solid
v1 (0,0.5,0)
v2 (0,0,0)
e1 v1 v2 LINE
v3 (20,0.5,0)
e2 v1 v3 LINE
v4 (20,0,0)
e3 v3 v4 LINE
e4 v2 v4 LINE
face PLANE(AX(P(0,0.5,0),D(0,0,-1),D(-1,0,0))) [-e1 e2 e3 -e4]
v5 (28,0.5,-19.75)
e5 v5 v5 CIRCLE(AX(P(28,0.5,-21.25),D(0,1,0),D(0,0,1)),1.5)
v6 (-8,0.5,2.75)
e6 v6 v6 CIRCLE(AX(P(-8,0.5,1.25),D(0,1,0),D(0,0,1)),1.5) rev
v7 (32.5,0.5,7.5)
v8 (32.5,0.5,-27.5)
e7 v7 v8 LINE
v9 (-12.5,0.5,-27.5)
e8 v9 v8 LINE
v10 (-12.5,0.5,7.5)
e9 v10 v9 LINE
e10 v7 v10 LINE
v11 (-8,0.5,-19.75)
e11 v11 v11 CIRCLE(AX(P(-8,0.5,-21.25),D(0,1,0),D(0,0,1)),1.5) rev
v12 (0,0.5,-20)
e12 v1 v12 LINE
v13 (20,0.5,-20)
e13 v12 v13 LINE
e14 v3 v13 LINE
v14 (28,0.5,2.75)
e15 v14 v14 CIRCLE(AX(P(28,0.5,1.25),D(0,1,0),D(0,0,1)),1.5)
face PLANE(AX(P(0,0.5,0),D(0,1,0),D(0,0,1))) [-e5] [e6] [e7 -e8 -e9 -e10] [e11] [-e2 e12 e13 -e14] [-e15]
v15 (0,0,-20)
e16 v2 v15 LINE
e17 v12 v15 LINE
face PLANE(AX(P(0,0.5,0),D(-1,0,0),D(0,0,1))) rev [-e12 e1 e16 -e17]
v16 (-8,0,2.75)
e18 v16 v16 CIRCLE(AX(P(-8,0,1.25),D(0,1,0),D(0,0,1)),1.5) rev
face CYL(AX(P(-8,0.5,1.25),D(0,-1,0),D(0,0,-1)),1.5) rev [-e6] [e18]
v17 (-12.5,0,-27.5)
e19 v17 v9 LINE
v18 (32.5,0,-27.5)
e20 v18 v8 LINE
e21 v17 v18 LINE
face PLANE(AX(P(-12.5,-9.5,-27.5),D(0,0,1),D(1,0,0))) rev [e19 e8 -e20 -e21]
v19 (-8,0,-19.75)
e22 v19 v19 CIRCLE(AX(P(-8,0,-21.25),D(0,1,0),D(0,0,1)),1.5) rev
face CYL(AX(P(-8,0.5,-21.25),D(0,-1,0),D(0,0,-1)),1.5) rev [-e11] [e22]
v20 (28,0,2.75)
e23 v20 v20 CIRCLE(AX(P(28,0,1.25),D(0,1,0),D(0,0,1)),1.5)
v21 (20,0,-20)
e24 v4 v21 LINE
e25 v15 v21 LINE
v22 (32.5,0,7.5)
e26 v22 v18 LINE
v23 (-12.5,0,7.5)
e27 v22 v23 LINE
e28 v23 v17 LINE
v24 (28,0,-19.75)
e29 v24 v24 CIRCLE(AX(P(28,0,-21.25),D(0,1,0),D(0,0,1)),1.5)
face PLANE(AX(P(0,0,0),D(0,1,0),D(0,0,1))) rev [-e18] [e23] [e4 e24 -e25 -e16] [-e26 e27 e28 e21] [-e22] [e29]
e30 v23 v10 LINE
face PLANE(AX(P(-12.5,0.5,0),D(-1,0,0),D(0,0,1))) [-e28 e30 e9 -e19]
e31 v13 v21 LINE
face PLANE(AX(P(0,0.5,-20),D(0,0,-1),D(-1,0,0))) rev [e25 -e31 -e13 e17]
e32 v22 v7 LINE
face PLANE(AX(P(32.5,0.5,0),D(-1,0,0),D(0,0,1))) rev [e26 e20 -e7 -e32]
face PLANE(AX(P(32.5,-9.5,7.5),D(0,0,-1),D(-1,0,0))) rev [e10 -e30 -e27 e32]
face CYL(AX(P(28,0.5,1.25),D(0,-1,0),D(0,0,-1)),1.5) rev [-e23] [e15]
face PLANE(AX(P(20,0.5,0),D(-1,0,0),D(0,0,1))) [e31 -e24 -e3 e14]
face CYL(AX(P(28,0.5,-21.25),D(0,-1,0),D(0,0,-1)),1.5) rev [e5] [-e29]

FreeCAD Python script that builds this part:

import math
import FreeCAD as App
import Part
import Sketcher
from FreeCAD import Vector
Q = App.Units.Quantity

doc = App.newDocument("Part")
body = doc.addObject("PartDesign::Body", "Body")

sketch1 = doc.addObject("Sketcher::SketchObject", "Sketch")
body.addObject(sketch1)
sketch1.AttachmentSupport = (doc.XZ_Plane, [""])
sketch1.MapMode = "FlatFace"
sketch1.addGeometry([
    Part.ArcOfCircle(Part.Circle(Vector(-9.97, 9.97, 0), Vector(0, 0, 1), 3.5), math.radians(133.82), math.radians(136.18)),
    Part.LineSegment(Vector(-12.4, 12.5, 0), Vector(32.5, 12.5, 0)),
    Part.LineSegment(Vector(32.5, 12.5, 0), Vector(32.5, -32.5, 0)),
    Part.LineSegment(Vector(32.5, -32.5, 0), Vector(-12.5, -32.5, 0)),
    Part.LineSegment(Vector(-12.5, -32.5, 0), Vector(-12.5, 12.4, 0)),
    Part.Circle(Vector(-8, 1.25, 0), Vector(0, 0, 1), 1.5),
    Part.Circle(Vector(28, 1.25, 0), Vector(0, 0, 1), 1.5),
    Part.Circle(Vector(-8, -21.25, 0), Vector(0, 0, 1), 1.5),
    Part.LineSegment(Vector(20, 0, 0), Vector(0, 0, 0)),
    Part.LineSegment(Vector(0, 0, 0), Vector(0, -20, 0)),
    Part.LineSegment(Vector(0, -20, 0), Vector(20, -20, 0)),
    Part.LineSegment(Vector(20, -20, 0), Vector(20, 0, 0)),
    Part.Circle(Vector(28, -21.25, 0), Vector(0, 0, 1), 1.5),
], False)
sketch1.addConstraint([
    Sketcher.Constraint("Coincident", 0, 1, 1, 1),
    Sketcher.Constraint("Coincident", 1, 2, 2, 1),
    Sketcher.Constraint("Coincident", 2, 2, 3, 1),
    Sketcher.Constraint("Coincident", 3, 2, 4, 1),
    Sketcher.Constraint("Coincident", 4, 2, 0, 2),
    Sketcher.Constraint("Coincident", 8, 2, 9, 1),
    Sketcher.Constraint("Coincident", 9, 2, 10, 1),
    Sketcher.Constraint("Coincident", 10, 2, 11, 1),
    Sketcher.Constraint("Coincident", 11, 2, 8, 1),
    Sketcher.Constraint("Horizontal", 1),
    Sketcher.Constraint("Vertical", 2),
    Sketcher.Constraint("Horizontal", 3),
    Sketcher.Constraint("Vertical", 4),
    Sketcher.Constraint("Horizontal", 8),
    Sketcher.Constraint("Vertical", 9),
    Sketcher.Constraint("Horizontal", 10),
    Sketcher.Constraint("Vertical", 11),
    Sketcher.Constraint("Coincident", 8, 2, -1, 1),
    Sketcher.Constraint("Equal", 5, 6),
    Sketcher.Constraint("Equal", 6, 7),
    Sketcher.Constraint("Equal", 7, 12),
    Sketcher.Constraint("Horizontal", 5, 3, 6, 3),
    Sketcher.Constraint("Horizontal", 7, 3, 12, 3),
    Sketcher.Constraint("Vertical", 5, 3, 7, 3),
    Sketcher.Constraint("Vertical", 6, 3, 12, 3),
    Sketcher.Constraint("Equal", 3, 2),
    Sketcher.Constraint("Equal", 1, 4),
    Sketcher.Constraint("Equal", 10, 9),
    Sketcher.Constraint("Diameter", 5, Q("3 mm")),
    Sketcher.Constraint("Radius", 0, Q("3.500001 mm")),
    Sketcher.Constraint("DistanceX", 3, 2, 3, 1, Q("45 mm")),
    Sketcher.Constraint("DistanceX", 8, 2, 8, 1, Q("20 mm")),
    Sketcher.Constraint("DistanceX", 5, 3, -1, 1, Q("8 mm")),
    Sketcher.Constraint("DistanceX", -1, 1, 6, 3, Q("28 mm")),
    Sketcher.Constraint("DistanceY", -1, 1, 0, 1, Q("12.5 mm")),
    Sketcher.Constraint("DistanceX", -1, 1, 1, 2, Q("32.5 mm")),
    Sketcher.Constraint("DistanceY", 7, 3, 5, 3, Q("22.5 mm")),
    Sketcher.Constraint("DistanceY", -1, 1, 5, 3, Q("1.25 mm")),
    Sketcher.Constraint("DistanceX", 1, 1, 1, 2, Q("44.898453 mm")),
])
pad1 = doc.addObject("PartDesign::Pad", "Pad")
body.addObject(pad1)
pad1.Profile = sketch1
pad1.Length = 0.5
pad1.Reversed = True

sketch2 = doc.addObject("Sketcher::SketchObject", "Sketch001")
body.addObject(sketch2)
sketch2.AttachmentSupport = (doc.XZ_Plane, [""])
sketch2.MapMode = "FlatFace"
sketch2.AttachmentOffset = App.Placement(Vector(0, 0, -0.5), App.Rotation())
sketch2.addGeometry([
    Part.LineSegment(Vector(-12, -32, 0), Vector(-12, -28, 0)),
    Part.LineSegment(Vector(-12, -28, 0), Vector(32, -28, 0)),
    Part.LineSegment(Vector(32, -28, 0), Vector(32, -32, 0)),
    Part.LineSegment(Vector(32, -32, 0), Vector(-12, -32, 0)),
    Part.LineSegment(Vector(-12, 8, 0), Vector(-12, 12, 0)),
    Part.LineSegment(Vector(-12, 12, 0), Vector(32, 12, 0)),
    Part.LineSegment(Vector(32, 12, 0), Vector(32, 8, 0)),
    Part.LineSegment(Vector(32, 8, 0), Vector(-12, 8, 0)),
], False)
sketch2.addConstraint([
    Sketcher.Constraint("Coincident", 0, 2, 1, 1),
    Sketcher.Constraint("Coincident", 1, 2, 2, 1),
    Sketcher.Constraint("Coincident", 2, 2, 3, 1),
    Sketcher.Constraint("Coincident", 3, 2, 0, 1),
    Sketcher.Constraint("Coincident", 4, 2, 5, 1),
    Sketcher.Constraint("Coincident", 5, 2, 6, 1),
    Sketcher.Constraint("Coincident", 6, 2, 7, 1),
    Sketcher.Constraint("Coincident", 7, 2, 4, 1),
    Sketcher.Constraint("Vertical", 0),
    Sketcher.Constraint("Horizontal", 1),
    Sketcher.Constraint("Vertical", 2),
    Sketcher.Constraint("Horizontal", 3),
    Sketcher.Constraint("Vertical", 4),
    Sketcher.Constraint("Horizontal", 5),
    Sketcher.Constraint("Vertical", 6),
    Sketcher.Constraint("Horizontal", 7),
    Sketcher.Constraint("Vertical", 3, 2, 4, 2),
    Sketcher.Constraint("Vertical", 2, 2, 5, 2),
    Sketcher.Constraint("Equal", 2, 4),
    Sketcher.Constraint("DistanceX", 1, 1, 1, 2, Q("45 mm")),
    Sketcher.Constraint("DistanceY", 0, 1, 0, 2, Q("5 mm")),
    Sketcher.Constraint("DistanceY", 0, 2, 4, 2, Q("40 mm")),
    Sketcher.Constraint("DistanceX", 0, 2, -1, 1, Q("12.5 mm")),
    Sketcher.Constraint("DistanceY", 0, 2, -1, 1, Q("27.5 mm")),
])
pocket1 = doc.addObject("PartDesign::Pocket", "Pocket")
body.addObject(pocket1)
pocket1.Profile = sketch2
pocket1.Length = 10
pocket1.Reversed = True

doc.recompute()
